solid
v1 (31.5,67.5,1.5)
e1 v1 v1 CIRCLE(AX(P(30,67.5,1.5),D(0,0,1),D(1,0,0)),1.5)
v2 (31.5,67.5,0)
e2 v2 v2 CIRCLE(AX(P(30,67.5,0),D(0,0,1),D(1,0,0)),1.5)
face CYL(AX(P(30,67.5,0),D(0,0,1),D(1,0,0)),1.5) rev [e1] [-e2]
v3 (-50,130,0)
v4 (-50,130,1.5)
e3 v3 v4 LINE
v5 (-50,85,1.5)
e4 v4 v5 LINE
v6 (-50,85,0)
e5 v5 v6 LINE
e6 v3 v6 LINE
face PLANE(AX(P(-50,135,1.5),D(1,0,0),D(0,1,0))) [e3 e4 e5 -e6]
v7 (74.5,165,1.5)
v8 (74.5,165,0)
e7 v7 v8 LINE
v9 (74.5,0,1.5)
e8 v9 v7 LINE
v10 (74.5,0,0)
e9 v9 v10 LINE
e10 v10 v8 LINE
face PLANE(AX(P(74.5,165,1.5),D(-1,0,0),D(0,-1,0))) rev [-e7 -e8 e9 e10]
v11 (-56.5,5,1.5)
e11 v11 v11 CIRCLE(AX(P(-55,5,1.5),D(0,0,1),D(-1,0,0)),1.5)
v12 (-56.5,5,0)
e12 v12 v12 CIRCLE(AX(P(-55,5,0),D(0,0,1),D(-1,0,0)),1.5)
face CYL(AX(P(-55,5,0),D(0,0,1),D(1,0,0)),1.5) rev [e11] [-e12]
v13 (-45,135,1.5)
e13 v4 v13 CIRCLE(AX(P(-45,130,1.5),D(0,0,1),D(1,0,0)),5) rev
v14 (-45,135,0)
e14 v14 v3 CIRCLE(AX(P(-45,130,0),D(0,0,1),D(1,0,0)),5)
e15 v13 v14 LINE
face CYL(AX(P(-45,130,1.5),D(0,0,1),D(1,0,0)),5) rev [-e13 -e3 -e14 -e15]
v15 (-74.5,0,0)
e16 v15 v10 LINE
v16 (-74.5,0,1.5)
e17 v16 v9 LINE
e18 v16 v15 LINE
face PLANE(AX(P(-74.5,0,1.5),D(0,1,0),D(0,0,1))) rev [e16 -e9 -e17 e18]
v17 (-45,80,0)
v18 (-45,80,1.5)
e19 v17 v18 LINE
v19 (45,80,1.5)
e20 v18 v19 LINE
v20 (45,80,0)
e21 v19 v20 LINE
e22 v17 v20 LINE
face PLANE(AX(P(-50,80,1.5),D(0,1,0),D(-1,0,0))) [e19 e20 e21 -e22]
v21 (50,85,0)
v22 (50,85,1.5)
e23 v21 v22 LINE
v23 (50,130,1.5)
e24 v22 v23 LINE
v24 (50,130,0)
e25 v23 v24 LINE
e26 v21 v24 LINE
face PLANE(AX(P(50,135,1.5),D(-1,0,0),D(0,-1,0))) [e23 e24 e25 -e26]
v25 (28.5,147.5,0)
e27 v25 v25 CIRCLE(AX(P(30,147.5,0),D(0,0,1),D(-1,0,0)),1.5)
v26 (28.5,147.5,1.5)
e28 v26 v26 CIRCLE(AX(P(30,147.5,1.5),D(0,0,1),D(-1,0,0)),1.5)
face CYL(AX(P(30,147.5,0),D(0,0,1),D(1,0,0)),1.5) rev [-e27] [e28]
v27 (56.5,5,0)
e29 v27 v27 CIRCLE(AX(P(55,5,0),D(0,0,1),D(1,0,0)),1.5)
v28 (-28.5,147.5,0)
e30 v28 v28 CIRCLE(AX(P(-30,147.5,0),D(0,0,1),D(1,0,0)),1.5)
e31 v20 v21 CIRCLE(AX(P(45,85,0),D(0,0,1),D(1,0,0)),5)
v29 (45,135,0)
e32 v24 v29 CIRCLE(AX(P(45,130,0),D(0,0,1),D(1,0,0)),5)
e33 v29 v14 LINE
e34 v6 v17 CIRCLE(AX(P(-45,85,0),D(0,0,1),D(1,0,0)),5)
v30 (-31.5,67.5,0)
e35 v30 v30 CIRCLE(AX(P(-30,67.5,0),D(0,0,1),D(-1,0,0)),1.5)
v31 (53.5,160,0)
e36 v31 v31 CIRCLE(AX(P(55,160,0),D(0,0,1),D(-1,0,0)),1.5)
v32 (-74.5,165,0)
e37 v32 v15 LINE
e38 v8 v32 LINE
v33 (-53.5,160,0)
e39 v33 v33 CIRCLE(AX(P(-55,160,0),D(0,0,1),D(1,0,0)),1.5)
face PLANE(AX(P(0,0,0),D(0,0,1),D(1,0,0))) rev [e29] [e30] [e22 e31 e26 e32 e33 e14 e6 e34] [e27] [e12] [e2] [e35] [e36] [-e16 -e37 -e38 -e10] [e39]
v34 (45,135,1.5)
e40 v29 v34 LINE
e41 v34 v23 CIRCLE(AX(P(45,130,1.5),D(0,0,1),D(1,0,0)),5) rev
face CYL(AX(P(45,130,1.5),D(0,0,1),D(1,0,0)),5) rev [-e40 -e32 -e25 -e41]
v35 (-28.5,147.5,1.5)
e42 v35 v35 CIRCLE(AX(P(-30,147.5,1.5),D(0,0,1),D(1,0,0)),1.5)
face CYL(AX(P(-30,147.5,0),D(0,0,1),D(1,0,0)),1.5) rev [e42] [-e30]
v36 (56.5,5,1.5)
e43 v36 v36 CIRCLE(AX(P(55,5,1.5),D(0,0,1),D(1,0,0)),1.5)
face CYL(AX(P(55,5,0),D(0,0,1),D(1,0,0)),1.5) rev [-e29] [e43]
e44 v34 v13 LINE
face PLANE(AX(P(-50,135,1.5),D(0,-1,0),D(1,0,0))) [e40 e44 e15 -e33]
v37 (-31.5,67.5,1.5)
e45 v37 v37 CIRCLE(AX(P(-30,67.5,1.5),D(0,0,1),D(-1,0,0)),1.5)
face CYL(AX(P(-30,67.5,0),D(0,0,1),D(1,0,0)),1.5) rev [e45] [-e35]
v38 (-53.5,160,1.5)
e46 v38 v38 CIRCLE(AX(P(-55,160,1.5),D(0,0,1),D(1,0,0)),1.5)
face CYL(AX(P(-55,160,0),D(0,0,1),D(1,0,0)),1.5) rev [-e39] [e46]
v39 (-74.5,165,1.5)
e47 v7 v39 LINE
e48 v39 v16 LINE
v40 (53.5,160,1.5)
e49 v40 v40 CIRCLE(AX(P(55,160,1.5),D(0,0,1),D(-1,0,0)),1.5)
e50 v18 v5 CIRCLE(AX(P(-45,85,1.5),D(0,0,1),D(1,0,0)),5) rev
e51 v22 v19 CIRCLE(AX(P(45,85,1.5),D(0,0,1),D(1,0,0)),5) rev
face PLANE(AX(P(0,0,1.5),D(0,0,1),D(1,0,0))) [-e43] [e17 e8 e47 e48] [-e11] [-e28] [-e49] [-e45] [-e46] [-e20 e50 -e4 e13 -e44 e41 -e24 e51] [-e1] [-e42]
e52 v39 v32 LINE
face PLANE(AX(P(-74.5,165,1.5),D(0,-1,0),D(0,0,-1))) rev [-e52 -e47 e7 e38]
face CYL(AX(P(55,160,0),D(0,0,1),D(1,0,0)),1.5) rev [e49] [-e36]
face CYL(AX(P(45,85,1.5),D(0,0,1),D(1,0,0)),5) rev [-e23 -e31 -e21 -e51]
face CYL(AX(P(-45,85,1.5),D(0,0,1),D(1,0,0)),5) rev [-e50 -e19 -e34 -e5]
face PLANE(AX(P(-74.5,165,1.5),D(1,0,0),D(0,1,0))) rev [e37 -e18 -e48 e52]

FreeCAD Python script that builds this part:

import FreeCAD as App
import Part
import Sketcher

V = App.Vector


def edges_at(feature, points):
    """Names of the edges that pass closest to the given points."""
    edges = feature.Shape.Edges
    near = lambda p: min(range(len(edges)), key=lambda i: edges[i].distToShape(Part.Vertex(*p))[0])
    return sorted({f"Edge{near(p) + 1}" for p in points})


def add_polygon(sketch, points):
    """Adds a closed chain of lines whose ends are joined by coincident constraints."""
    first, n = sketch.GeometryCount, len(points)
    for a, b in zip(points, points[1:] + points[:1]):
        sketch.addGeometry(Part.LineSegment(App.Vector(*a, 0), App.Vector(*b, 0)), False)
    for i in range(n):
        sketch.addConstraint(Sketcher.Constraint("Coincident", first + i, 2, first + (i + 1) % n, 1))

doc = App.newDocument("Part")
body = doc.addObject("PartDesign::Body", "Body")

# Sketch on XY plane
sketch1 = body.newObject("Sketcher::SketchObject", "Sketch")
sketch1.AttachmentSupport = (doc.getObject("XY_Plane"), [""])
sketch1.MapMode = "FlatFace"
add_polygon(sketch1, [(-74, 165), (-74, 0), (74, 0), (74, 165)])  # lines 0-3
add_polygon(sketch1, [(50, 80), (-50, 80), (-50, 135), (50, 135)])  # lines 4-7
sketch1.addConstraint([
    Sketcher.Constraint("Vertical", 0),
    Sketcher.Constraint("Horizontal", 1),
    Sketcher.Constraint("Vertical", 2),
    Sketcher.Constraint("Horizontal", 3),
    Sketcher.Constraint("Horizontal", 4),
    Sketcher.Constraint("Vertical", 5),
    Sketcher.Constraint("Horizontal", 6),
    Sketcher.Constraint("Vertical", 7),
    Sketcher.Constraint("Symmetric", 0, 2, 1, 2, -1, 1),
    Sketcher.Constraint("DistanceX", 1, 1, 1, 2, 149.0),
    Sketcher.Constraint("DistanceX", 4, 2, 4, 1, 100.0),
    Sketcher.Constraint("DistanceY", 0, 2, 0, 1, 165.0),
    Sketcher.Constraint("DistanceY", 5, 1, 5, 2, 55.0),
    Sketcher.Constraint("DistanceX", 4, 2, -1, 1, 50.0),
    Sketcher.Constraint("DistanceY", -1, 1, 4, 2, 80.0),
])
pad1 = body.newObject("PartDesign::Pad", "Pad")
pad1.Profile = sketch1
pad1.Length = 1.5
doc.recompute()

fillet = body.newObject("PartDesign::Fillet", "Fillet")
fillet.Base = (pad1, edges_at(pad1, [
    (-50, 135, 0.75),
    (-50, 80, 0.75),
    (50, 80, 0.75),
    (50, 135, 0.75),
]))
fillet.Radius = 5

# Sketch on XY plane
sketch2 = body.newObject("Sketcher::SketchObject", "Sketch001")
sketch2.AttachmentSupport = (doc.getObject("XY_Plane"), [""])
sketch2.MapMode = "FlatFace"
sketch2.AttachmentOffset = App.Placement(V(0, 0, 1.5), App.Rotation())
sketch2.addGeometry([
    Part.Circle(V(-30, 147.5, 0), V(0, 0, 1), 1.5),  # 0
    Part.Circle(V(-30, 67.5, 0), V(0, 0, 1), 1.5),  # 1
    Part.Circle(V(30, 67.5, 0), V(0, 0, 1), 1.5),  # 2
    Part.Circle(V(30, 147.5, 0), V(0, 0, 1), 1.5),  # 3
    Part.Circle(V(-55, 160, 0), V(0, 0, 1), 1.5),  # 4
    Part.Circle(V(-55, 5, 0), V(0, 0, 1), 1.5),  # 5
    Part.Circle(V(55, 5, 0), V(0, 0, 1), 1.5),  # 6
    Part.Circle(V(55, 160, 0), V(0, 0, 1), 1.5),  # 7
], False)
sketch2.addConstraint([
    Sketcher.Constraint("Equal", 0, 1),
    Sketcher.Constraint("Equal", 1, 2),
    Sketcher.Constraint("Equal", 2, 3),
    Sketcher.Constraint("Equal", 3, 4),
    Sketcher.Constraint("Equal", 4, 5),
    Sketcher.Constraint("Equal", 5, 6),
    Sketcher.Constraint("Equal", 6, 7),
    Sketcher.Constraint("Symmetric", 1, 3, 2, 3, -2),
    Sketcher.Constraint("Symmetric", 0, 3, 3, 3, -2),
    Sketcher.Constraint("Symmetric", 5, 3, 6, 3, -2),
    Sketcher.Constraint("Symmetric", 4, 3, 7, 3, -2),
    Sketcher.Constraint("Vertical", 0, 3, 1, 3),
    Sketcher.Constraint("Vertical", 4, 3, 5, 3),
    Sketcher.Constraint("Diameter", 0, 3.0),
    Sketcher.Constraint("DistanceX", 0, 3, -1, 1, 30.0),
    Sketcher.Constraint("DistanceX", 4, 3, -1, 1, 55.0),
    Sketcher.Constraint("DistanceY", -1, 1, 4, 3, 160.0),
    Sketcher.Constraint("DistanceY", -1, 1, 5, 3, 5.0),
    Sketcher.Constraint("DistanceY", 1, 3, 0, 3, 80.0),
    Sketcher.Constraint("DistanceY", -1, 1, 0, 3, 147.5),
])
pocket1 = body.newObject("PartDesign::Pocket", "Pocket")
pocket1.Profile = sketch2
pocket1.Type = "ThroughAll"

doc.recompute()
